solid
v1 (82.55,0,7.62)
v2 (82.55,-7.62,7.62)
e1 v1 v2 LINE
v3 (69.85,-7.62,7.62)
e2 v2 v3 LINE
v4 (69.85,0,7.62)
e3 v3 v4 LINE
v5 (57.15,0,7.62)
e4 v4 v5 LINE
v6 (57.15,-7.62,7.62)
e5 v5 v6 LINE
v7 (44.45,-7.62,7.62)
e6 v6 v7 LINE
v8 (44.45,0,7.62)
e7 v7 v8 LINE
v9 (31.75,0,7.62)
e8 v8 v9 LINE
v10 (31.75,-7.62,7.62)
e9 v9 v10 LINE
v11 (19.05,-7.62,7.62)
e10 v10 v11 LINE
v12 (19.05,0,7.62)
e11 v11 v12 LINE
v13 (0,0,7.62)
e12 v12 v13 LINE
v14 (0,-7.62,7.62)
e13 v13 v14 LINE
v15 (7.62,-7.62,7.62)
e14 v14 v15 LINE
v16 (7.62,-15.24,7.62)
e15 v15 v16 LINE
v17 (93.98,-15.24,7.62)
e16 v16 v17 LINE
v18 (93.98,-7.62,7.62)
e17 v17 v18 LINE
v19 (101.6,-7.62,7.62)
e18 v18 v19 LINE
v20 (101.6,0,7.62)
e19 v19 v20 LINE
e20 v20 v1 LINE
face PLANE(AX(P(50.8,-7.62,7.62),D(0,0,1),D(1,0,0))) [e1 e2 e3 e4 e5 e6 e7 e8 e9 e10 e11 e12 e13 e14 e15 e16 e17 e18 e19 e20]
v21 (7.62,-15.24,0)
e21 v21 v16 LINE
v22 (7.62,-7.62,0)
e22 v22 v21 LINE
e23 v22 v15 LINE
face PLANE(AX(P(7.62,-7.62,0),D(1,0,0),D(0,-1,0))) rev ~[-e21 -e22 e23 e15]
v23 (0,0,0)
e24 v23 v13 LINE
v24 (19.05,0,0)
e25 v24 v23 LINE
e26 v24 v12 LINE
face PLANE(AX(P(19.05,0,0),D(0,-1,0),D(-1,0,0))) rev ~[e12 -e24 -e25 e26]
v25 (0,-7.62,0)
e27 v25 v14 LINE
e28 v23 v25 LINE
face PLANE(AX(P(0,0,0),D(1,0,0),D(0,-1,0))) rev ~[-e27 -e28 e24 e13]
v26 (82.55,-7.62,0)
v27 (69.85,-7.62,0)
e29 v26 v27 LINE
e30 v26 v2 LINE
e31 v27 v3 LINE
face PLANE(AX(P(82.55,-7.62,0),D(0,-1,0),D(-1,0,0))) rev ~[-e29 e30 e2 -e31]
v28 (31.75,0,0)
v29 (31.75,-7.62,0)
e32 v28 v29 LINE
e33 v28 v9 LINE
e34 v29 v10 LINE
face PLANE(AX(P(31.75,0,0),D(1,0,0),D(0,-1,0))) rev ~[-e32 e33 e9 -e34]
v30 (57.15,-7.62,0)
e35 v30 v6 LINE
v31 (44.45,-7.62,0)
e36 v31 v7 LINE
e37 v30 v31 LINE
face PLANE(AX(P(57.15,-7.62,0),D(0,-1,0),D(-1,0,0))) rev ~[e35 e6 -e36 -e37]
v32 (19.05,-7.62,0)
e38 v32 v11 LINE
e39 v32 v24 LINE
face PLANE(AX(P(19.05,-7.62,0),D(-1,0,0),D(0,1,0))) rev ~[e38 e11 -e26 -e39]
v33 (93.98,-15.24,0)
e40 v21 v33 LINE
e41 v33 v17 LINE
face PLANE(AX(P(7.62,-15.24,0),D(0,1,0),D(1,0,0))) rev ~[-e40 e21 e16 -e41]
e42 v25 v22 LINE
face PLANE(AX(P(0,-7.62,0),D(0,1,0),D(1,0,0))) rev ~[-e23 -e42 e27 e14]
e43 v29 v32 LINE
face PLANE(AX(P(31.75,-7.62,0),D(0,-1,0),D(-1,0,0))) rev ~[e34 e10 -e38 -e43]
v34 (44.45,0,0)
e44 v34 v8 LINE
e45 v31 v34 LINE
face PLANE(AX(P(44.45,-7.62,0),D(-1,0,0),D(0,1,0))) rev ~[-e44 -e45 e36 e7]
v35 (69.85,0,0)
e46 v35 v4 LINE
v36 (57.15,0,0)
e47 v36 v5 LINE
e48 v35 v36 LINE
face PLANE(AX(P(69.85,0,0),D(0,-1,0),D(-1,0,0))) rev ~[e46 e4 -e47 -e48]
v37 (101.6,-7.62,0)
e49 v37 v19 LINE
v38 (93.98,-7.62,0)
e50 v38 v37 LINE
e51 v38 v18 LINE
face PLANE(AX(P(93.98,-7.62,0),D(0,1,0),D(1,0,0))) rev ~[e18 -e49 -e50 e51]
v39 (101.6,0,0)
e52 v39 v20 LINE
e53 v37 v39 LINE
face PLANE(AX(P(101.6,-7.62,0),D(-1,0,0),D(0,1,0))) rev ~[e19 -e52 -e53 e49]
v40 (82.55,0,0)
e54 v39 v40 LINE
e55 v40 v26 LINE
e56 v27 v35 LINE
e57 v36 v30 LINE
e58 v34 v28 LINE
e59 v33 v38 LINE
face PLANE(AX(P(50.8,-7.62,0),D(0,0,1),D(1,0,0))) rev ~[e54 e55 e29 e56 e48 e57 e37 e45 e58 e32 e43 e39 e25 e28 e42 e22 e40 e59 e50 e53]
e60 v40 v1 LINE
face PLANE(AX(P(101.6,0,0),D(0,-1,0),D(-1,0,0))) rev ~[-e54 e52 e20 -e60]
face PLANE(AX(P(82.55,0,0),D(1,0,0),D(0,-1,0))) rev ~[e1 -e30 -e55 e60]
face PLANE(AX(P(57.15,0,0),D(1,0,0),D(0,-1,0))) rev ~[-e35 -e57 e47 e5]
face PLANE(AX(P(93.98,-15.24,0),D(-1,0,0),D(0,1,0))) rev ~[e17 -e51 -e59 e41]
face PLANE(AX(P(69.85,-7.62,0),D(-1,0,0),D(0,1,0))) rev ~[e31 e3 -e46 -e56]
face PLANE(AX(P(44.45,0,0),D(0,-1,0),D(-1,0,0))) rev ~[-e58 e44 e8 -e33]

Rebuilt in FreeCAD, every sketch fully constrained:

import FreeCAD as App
import Part
import Sketcher
Q = App.Units.Quantity


def add_polygon(sketch, points):
    """Adds a closed chain of lines whose ends are joined by coincident constraints."""
    first, n = sketch.GeometryCount, len(points)
    for a, b in zip(points, points[1:] + points[:1]):
        sketch.addGeometry(Part.LineSegment(App.Vector(*a, 0), App.Vector(*b, 0)), False)
    for i in range(n):
        sketch.addConstraint(Sketcher.Constraint("Coincident", first + i, 2, first + (i + 1) % n, 1))

doc = App.newDocument("Part")
params = doc.addObject("Spreadsheet::Sheet", "Params")
for row, (alias, value) in enumerate([
    ("sketch1_width", "0.3 in"),
    ("sketch1_width2", "3.4 in"),
    ("sketch1_width3", "0.5 in"),
    ("pad1_length", "0.3 in"),
], start=1):
    params.set(f"A{row}", alias)
    params.set(f"B{row}", "=" + value)
    params.setAlias(f"B{row}", alias)

body = doc.addObject("PartDesign::Body", "Body")

# Sketch on XY plane
sketch1 = doc.addObject("Sketcher::SketchObject", "Sketch")
body.addObject(sketch1)
sketch1.AttachmentSupport = (doc.XY_Plane, [""])
sketch1.MapMode = "FlatFace"
add_polygon(sketch1, [(19, 0), (0, 0), (0, -8), (8, -8), (8, -15), (94, -15), (94, -8), (102, -8), (102, 0), (83, 0), (83, -8), (70, -8), (70, 0), (57, 0), (57, -8), (44, -8), (44, 0), (32, 0), (32, -8), (19, -8)])  # lines 0-19
sketch1.addConstraint([
    Sketcher.Constraint("Horizontal", 0),
    Sketcher.Constraint("Vertical", 1),
    Sketcher.Constraint("Horizontal", 2),
    Sketcher.Constraint("Vertical", 3),
    Sketcher.Constraint("Horizontal", 4),
    Sketcher.Constraint("Vertical", 5),
    Sketcher.Constraint("Horizontal", 6),
    Sketcher.Constraint("Vertical", 7),
    Sketcher.Constraint("Horizontal", 8),
    Sketcher.Constraint("Vertical", 9),
    Sketcher.Constraint("Horizontal", 10),
    Sketcher.Constraint("Vertical", 11),
    Sketcher.Constraint("Horizontal", 12),
    Sketcher.Constraint("Vertical", 13),
    Sketcher.Constraint("Horizontal", 14),
    Sketcher.Constraint("Vertical", 15),
    Sketcher.Constraint("Horizontal", 16),
    Sketcher.Constraint("Vertical", 17),
    Sketcher.Constraint("Horizontal", 18),
    Sketcher.Constraint("Vertical", 19),
    Sketcher.Constraint("Coincident", 0, 2, -1, 1),
    Sketcher.Constraint("PointOnObject", 7, 2, -1),
    Sketcher.Constraint("PointOnObject", 11, 2, -1),
    Sketcher.Constraint("PointOnObject", 15, 2, -1),
    Sketcher.Constraint("Horizontal", 2, 2, 5, 2),
    Sketcher.Constraint("Horizontal", 6, 2, 9, 2),
    Sketcher.Constraint("Horizontal", 10, 2, 13, 2),
    Sketcher.Constraint("Horizontal", 14, 2, 17, 2),
    Sketcher.Constraint("Equal", 2, 6),
    Sketcher.Constraint("Equal", 0, 8),
    Sketcher.Constraint("Equal", 10, 12),
    Sketcher.Constraint("Equal", 12, 14),
    Sketcher.Constraint("Equal", 14, 16),
    Sketcher.Constraint("Equal", 16, 18),
    Sketcher.Constraint("Equal", 6, 1),
    Sketcher.Constraint("Equal", 1, 3),
    Sketcher.Constraint("DistanceX", 2, 1, 2, 2, Q("0.3 in")),
    Sketcher.Constraint("DistanceX", 4, 1, 4, 2, Q("3.4 in")),
    Sketcher.Constraint("DistanceX", 10, 2, 10, 1, Q("0.5 in")),
])
sketch1.setExpression("Constraints[56]", "Params.sketch1_width")
sketch1.setExpression("Constraints[57]", "Params.sketch1_width2")
sketch1.setExpression("Constraints[58]", "Params.sketch1_width3")
pad1 = doc.addObject("PartDesign::Pad", "Pad")
body.addObject(pad1)
pad1.Profile = sketch1
pad1.setExpression("Length", "Params.pad1_length")

doc.recompute()
